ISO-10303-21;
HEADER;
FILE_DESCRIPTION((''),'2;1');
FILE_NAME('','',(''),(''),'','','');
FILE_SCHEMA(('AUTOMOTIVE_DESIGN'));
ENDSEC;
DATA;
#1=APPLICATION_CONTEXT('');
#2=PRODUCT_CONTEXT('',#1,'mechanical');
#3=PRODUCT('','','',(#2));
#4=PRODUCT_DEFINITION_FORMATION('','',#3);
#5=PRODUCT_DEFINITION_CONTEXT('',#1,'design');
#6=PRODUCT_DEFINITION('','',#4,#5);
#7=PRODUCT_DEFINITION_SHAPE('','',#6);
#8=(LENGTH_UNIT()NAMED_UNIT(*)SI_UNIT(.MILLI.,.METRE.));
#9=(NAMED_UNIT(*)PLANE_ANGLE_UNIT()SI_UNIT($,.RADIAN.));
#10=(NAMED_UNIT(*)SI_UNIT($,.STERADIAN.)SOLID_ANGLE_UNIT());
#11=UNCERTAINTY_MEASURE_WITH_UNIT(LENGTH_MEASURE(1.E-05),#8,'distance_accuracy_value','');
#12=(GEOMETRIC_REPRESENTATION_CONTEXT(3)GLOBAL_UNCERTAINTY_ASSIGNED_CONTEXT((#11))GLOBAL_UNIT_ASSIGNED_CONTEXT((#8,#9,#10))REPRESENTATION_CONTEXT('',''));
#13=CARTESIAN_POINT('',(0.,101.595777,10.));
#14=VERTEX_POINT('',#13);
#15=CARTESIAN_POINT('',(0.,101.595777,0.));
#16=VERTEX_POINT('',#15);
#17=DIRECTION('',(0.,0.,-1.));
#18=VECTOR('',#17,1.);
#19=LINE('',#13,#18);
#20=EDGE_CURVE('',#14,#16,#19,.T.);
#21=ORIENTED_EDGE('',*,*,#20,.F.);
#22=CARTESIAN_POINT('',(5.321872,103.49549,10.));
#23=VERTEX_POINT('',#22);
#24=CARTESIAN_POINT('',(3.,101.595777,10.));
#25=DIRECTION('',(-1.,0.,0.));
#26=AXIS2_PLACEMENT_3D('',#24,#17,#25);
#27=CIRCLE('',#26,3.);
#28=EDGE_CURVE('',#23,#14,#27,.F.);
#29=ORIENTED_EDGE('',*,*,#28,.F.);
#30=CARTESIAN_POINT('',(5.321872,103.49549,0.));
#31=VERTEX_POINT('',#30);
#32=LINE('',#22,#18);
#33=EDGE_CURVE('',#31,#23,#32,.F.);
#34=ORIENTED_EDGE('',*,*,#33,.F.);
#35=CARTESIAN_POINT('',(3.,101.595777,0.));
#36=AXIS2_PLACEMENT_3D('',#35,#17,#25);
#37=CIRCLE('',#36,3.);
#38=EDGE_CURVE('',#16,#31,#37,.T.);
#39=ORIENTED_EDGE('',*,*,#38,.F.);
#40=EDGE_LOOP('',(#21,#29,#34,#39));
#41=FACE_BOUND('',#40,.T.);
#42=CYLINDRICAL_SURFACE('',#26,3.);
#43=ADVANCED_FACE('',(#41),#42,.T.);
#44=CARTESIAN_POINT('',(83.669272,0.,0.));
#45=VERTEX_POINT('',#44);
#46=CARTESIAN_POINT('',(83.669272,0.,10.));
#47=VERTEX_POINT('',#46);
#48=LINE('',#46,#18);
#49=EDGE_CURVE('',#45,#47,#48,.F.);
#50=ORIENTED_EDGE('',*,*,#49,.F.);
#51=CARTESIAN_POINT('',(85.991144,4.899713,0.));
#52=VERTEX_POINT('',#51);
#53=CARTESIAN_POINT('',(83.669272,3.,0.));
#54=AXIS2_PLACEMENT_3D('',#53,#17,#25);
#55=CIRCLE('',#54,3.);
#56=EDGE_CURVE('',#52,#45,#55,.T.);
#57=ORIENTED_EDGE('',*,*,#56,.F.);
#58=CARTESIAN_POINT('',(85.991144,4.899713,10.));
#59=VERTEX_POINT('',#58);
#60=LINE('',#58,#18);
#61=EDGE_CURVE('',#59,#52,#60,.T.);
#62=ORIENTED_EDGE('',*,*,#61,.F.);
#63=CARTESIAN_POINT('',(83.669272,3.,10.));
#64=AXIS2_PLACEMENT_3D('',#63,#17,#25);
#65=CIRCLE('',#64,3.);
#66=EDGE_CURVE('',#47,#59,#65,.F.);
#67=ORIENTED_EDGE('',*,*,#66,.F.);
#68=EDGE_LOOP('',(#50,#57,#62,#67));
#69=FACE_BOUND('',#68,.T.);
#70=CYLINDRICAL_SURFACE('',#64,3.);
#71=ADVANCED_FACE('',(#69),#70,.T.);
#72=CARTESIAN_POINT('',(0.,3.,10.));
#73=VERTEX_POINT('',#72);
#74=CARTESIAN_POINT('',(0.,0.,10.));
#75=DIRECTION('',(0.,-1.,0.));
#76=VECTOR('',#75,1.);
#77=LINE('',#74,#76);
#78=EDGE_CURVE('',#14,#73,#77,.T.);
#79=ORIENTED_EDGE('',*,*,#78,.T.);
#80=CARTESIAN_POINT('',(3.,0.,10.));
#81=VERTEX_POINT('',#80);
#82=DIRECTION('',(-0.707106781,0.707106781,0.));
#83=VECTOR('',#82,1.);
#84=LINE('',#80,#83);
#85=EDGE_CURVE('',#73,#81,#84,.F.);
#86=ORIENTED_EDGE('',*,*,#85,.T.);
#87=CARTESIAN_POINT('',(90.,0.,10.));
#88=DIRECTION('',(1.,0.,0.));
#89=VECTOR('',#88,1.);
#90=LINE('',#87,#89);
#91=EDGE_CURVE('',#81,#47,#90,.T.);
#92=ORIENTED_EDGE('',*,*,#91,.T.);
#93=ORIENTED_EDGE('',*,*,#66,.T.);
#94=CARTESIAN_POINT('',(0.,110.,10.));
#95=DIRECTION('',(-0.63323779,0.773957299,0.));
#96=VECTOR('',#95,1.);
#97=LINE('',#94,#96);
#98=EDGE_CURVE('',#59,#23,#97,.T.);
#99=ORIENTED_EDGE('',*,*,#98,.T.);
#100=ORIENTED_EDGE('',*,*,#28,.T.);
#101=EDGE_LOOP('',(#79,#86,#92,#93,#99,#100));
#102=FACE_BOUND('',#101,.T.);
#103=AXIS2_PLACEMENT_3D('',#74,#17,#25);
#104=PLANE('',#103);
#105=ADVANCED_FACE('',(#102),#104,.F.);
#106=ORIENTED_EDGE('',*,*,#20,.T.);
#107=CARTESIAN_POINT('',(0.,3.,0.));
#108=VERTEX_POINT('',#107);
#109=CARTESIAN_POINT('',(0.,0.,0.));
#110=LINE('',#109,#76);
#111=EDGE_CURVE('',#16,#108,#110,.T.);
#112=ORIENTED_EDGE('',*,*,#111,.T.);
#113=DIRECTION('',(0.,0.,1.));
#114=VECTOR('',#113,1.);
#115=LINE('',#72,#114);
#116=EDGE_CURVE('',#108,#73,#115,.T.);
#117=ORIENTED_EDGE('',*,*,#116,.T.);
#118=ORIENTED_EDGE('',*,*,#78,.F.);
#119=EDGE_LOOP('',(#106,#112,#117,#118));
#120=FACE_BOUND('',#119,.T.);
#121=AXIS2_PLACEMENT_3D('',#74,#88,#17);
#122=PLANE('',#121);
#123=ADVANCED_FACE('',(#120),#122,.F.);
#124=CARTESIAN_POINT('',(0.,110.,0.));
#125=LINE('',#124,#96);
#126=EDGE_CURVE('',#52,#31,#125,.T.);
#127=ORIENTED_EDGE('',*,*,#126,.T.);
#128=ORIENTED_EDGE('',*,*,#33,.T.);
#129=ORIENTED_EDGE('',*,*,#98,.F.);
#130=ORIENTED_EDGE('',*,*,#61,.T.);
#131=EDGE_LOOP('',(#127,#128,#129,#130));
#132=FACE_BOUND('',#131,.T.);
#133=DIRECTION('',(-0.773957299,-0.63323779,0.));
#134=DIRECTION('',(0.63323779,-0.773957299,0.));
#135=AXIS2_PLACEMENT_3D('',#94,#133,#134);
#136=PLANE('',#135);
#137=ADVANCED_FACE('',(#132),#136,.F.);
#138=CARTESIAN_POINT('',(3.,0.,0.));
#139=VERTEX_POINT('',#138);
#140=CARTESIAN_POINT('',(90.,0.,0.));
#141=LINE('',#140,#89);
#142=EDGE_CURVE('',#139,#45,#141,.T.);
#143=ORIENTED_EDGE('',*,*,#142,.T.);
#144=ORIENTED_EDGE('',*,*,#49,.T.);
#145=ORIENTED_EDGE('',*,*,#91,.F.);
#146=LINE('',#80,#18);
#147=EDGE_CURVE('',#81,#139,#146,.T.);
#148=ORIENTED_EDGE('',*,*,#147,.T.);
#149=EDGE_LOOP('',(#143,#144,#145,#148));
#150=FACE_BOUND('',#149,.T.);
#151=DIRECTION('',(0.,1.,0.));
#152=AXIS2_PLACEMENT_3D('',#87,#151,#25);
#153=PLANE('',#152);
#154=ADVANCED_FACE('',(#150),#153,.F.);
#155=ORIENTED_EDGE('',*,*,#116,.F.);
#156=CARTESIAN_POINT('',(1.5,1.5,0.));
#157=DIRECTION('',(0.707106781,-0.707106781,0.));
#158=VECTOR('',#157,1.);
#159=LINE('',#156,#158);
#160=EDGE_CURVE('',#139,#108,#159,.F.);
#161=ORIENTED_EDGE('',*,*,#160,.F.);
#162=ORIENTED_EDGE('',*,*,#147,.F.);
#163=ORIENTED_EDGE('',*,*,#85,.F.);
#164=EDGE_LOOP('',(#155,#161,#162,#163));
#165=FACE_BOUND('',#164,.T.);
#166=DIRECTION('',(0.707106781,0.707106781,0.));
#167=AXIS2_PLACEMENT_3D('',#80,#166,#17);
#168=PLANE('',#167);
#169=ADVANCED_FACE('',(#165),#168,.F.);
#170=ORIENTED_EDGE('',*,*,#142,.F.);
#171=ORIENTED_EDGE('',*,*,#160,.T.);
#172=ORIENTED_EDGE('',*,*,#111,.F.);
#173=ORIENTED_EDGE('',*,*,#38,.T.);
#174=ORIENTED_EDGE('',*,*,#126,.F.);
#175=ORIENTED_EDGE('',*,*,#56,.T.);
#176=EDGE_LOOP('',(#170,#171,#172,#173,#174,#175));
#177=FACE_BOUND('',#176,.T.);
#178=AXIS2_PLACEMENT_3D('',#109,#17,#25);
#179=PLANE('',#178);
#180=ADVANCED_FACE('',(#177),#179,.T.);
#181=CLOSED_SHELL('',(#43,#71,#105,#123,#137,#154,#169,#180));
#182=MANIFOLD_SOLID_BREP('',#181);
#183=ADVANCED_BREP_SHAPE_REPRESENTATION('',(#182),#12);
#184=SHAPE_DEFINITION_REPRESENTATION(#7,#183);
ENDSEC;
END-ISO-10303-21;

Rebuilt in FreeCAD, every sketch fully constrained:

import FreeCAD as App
import Part
import Sketcher

V = App.Vector


def edges_at(feature, points):
    """Names of the edges that pass closest to the given points."""
    edges = feature.Shape.Edges
    near = lambda p: min(range(len(edges)), key=lambda i: edges[i].distToShape(Part.Vertex(*p))[0])
    return sorted({f"Edge{near(p) + 1}" for p in points})

doc = App.newDocument("Part")
body = doc.addObject("PartDesign::Body", "Body")

# Sketch on XY plane
sketch1 = doc.addObject("Sketcher::SketchObject", "Sketch")
body.addObject(sketch1)
sketch1.AttachmentSupport = (doc.XY_Plane, [""])
sketch1.MapMode = "FlatFace"
sketch1.addGeometry([
    Part.LineSegment(V(0, 110, 0), V(0, 0, 0)),
    Part.LineSegment(V(0, 0, 0), V(90, 0, 0)),
    Part.LineSegment(V(90, 0, 0), V(0, 110, 0)),
], False)
sketch1.addConstraint([
    Sketcher.Constraint("Coincident", 0, 2, 1, 1),
    Sketcher.Constraint("Coincident", 1, 2, 2, 1),
    Sketcher.Constraint("Coincident", 2, 2, 0, 1),
    Sketcher.Constraint("Vertical", 0),
    Sketcher.Constraint("Horizontal", 1),
    Sketcher.Constraint("Coincident", 0, 2, -1, 1),
    Sketcher.Constraint("DistanceX", 1, 1, 1, 2, 90.0),
    Sketcher.Constraint("DistanceY", 0, 2, 0, 1, 110.0),
])
pad1 = doc.addObject("PartDesign::Pad", "Pad")
body.addObject(pad1)
pad1.Profile = sketch1
pad1.Length = 10
doc.recompute()

chamfer = doc.addObject("PartDesign::Chamfer", "Chamfer")
body.addObject(chamfer)
chamfer.Base = (pad1, edges_at(pad1, [(0, 0, 5)]))
chamfer.Size = 3
doc.recompute()

fillet = doc.addObject("PartDesign::Fillet", "Fillet")
body.addObject(fillet)
fillet.Base = (chamfer, edges_at(chamfer, [(0, 110, 5), (90, 0, 5)]))
fillet.Radius = 3

doc.recompute()
